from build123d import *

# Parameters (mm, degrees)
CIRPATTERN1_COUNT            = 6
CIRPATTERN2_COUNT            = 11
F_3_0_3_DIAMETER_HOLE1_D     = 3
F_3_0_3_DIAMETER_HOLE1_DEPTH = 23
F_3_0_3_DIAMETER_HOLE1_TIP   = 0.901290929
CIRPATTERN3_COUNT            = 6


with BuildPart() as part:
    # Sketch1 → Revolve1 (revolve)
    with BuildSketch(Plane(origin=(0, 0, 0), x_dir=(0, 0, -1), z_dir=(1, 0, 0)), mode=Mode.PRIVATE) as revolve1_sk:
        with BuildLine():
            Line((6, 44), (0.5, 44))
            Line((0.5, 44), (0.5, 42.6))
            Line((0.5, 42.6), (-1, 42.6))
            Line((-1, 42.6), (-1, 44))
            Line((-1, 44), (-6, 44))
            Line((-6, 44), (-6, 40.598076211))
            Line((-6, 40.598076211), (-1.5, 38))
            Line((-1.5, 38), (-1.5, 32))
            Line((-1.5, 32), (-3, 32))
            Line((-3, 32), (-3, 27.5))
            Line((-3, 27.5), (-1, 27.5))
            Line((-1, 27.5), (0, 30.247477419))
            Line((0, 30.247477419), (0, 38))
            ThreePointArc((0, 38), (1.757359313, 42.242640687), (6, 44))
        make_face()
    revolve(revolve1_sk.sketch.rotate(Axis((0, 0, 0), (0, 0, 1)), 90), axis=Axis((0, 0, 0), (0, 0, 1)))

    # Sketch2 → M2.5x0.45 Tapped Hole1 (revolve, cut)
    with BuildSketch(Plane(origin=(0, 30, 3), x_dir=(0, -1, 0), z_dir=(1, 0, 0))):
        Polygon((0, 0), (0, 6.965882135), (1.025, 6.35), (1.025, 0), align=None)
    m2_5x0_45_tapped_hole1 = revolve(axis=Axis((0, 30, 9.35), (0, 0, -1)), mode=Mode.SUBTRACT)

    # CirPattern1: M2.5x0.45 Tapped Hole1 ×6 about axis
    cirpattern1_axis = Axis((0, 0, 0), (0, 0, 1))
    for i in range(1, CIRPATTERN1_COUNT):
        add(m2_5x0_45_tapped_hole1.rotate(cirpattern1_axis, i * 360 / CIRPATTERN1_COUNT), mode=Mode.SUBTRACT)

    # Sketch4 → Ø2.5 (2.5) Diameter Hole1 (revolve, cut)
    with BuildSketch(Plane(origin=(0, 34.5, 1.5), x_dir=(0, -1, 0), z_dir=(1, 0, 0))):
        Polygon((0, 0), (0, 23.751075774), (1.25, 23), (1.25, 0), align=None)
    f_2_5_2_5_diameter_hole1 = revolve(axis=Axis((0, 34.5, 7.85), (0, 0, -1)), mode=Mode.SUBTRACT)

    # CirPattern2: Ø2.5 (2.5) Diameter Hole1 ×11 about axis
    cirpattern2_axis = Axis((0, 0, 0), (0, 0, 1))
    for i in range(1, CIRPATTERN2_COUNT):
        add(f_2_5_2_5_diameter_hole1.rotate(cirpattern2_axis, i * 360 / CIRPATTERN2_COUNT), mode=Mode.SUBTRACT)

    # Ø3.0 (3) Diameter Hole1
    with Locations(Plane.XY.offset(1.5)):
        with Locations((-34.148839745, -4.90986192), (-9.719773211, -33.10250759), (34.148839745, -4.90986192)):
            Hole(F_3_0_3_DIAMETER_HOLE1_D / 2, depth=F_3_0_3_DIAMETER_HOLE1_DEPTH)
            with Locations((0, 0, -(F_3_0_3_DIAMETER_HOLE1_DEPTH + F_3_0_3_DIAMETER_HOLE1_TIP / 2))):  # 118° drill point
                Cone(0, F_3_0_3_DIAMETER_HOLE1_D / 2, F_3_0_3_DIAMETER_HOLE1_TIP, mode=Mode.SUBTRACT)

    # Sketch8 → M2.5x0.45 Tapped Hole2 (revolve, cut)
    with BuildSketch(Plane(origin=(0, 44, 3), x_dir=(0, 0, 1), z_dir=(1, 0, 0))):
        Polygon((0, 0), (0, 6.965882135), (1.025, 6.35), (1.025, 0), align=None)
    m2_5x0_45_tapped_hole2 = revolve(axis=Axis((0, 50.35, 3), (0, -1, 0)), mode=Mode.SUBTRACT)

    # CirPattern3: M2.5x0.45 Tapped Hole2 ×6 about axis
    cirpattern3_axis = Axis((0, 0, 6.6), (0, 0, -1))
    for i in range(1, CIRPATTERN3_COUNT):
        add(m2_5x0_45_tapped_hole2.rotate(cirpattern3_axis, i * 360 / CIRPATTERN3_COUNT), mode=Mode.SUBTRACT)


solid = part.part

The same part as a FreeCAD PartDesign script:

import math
import FreeCAD as App
import Part
import Sketcher
Q = App.Units.Quantity

doc = App.newDocument("Part")
params = doc.addObject("Spreadsheet::Sheet", "Params")
for row, (alias, value) in enumerate([
    ("sketch1_radius", "6 mm"),
    ("sketch1_width", "6 mm"),
    ("sketch1_height", "5 mm"),
    ("sketch1_height2", "2 mm"),
    ("sketch1_width2", "1.4 mm"),
    ("revolution_angle", "360 deg"),
    ("sketch2_height", "6.35 mm"),
    ("groove_angle", "360 deg"),
    ("sketch3_height", "23 mm"),
    ("sketch3_width", "1.25 mm"),
    ("groove2_angle", "360 deg"),
    ("sketch4_diameter", "3 mm"),
    ("hole_diameter", "3 mm"),
    ("hole_depth", "23 mm"),
    ("sketch5_width", "6.35 mm"),
    ("groove3_angle", "360 deg"),
], start=1):
    params.set(f"A{row}", alias)
    params.set(f"B{row}", "=" + value)
    params.setAlias(f"B{row}", alias)

body = doc.addObject("PartDesign::Body", "Body")

sketch1 = body.newObject("Sketcher::SketchObject", "Sketch")
sketch1.AttachmentSupport = (doc.getObject("YZ_Plane"), [""])
sketch1.MapMode = "FlatFace"
sketch1.addGeometry([
    Part.LineSegment(App.Vector(44, -6, 0), App.Vector(44, -0.5, 0)),
    Part.LineSegment(App.Vector(44, -0.5, 0), App.Vector(42.6, -0.5, 0)),
    Part.LineSegment(App.Vector(42.6, -0.5, 0), App.Vector(42.6, 1, 0)),
    Part.LineSegment(App.Vector(42.6, 1, 0), App.Vector(44, 1, 0)),
    Part.LineSegment(App.Vector(44, 1, 0), App.Vector(44, 6, 0)),
    Part.LineSegment(App.Vector(44, 6, 0), App.Vector(40.6, 6, 0)),
    Part.LineSegment(App.Vector(40.6, 6, 0), App.Vector(38, 1.5, 0)),
    Part.LineSegment(App.Vector(38, 1.5, 0), App.Vector(32, 1.5, 0)),
    Part.LineSegment(App.Vector(32, 1.5, 0), App.Vector(32, 3, 0)),
    Part.LineSegment(App.Vector(32, 3, 0), App.Vector(27.5, 3, 0)),
    Part.LineSegment(App.Vector(27.5, 3, 0), App.Vector(27.5, 1, 0)),
    Part.LineSegment(App.Vector(27.5, 1, 0), App.Vector(30.2, 0, 0)),
    Part.LineSegment(App.Vector(30.2, 0, 0), App.Vector(38, 0, 0)),
    Part.ArcOfCircle(Part.Circle(App.Vector(38, -6, 0), App.Vector(0, 0, 1), 6), math.radians(0), math.radians(90)),
], False)
sketch1.addConstraint([
    Sketcher.Constraint("Coincident", 0, 2, 1, 1),
    Sketcher.Constraint("Coincident", 1, 2, 2, 1),
    Sketcher.Constraint("Coincident", 2, 2, 3, 1),
    Sketcher.Constraint("Coincident", 3, 2, 4, 1),
    Sketcher.Constraint("Coincident", 4, 2, 5, 1),
    Sketcher.Constraint("Coincident", 5, 2, 6, 1),
    Sketcher.Constraint("Coincident", 6, 2, 7, 1),
    Sketcher.Constraint("Coincident", 7, 2, 8, 1),
    Sketcher.Constraint("Coincident", 8, 2, 9, 1),
    Sketcher.Constraint("Coincident", 9, 2, 10, 1),
    Sketcher.Constraint("Coincident", 10, 2, 11, 1),
    Sketcher.Constraint("Coincident", 11, 2, 12, 1),
    Sketcher.Constraint("Tangent", 12, 2, 13, 2),
    Sketcher.Constraint("Tangent", 13, 1, 0, 1),
    Sketcher.Constraint("Vertical", 0),
    Sketcher.Constraint("Horizontal", 1),
    Sketcher.Constraint("Vertical", 2),
    Sketcher.Constraint("Horizontal", 3),
    Sketcher.Constraint("Vertical", 4),
    Sketcher.Constraint("Horizontal", 5),
    Sketcher.Constraint("Horizontal", 7),
    Sketcher.Constraint("Vertical", 8),
    Sketcher.Constraint("Horizontal", 9),
    Sketcher.Constraint("Vertical", 10),
    Sketcher.Constraint("Horizontal", 12),
    Sketcher.Constraint("Symmetric", 4, 2, 13, 1, -1),
    Sketcher.Constraint("PointOnObject", 11, 2, -1),
    Sketcher.Constraint("Horizontal", 3, 2, 10, 2),
    Sketcher.Constraint("Vertical", 13, 3, 6, 2),
    Sketcher.Constraint("Equal", 2, 8),
    Sketcher.Constraint("Radius", 13, Q("6 mm")),
    Sketcher.Constraint("DistanceX", 7, 2, 7, 1, Q("6 mm")),
    Sketcher.Constraint("DistanceY", 4, 1, 4, 2, Q("5 mm")),
    Sketcher.Constraint("DistanceY", 10, 2, 10, 1, Q("2 mm")),
    Sketcher.Constraint("Angle", 6, Q("-120 deg")),
    Sketcher.Constraint("Angle", 11, Q("-20 deg")),
    Sketcher.Constraint("DistanceX", 1, 2, 1, 1, Q("1.4 mm")),
    Sketcher.Constraint("DistanceX", 9, 2, 9, 1, Q("4.5 mm")),
    Sketcher.Constraint("DistanceY", 0, 1, 0, 2, Q("5.5 mm")),
    Sketcher.Constraint("DistanceX", -1, 1, 13, 3, Q("38 mm")),
])
sketch1.setExpression("Constraints[30]", "Params.sketch1_radius")
sketch1.setExpression("Constraints[31]", "Params.sketch1_width")
sketch1.setExpression("Constraints[32]", "Params.sketch1_height")
sketch1.setExpression("Constraints[33]", "Params.sketch1_height2")
sketch1.setExpression("Constraints[36]", "Params.sketch1_width2")
revolution = body.newObject("PartDesign::Revolution", "Revolution")
revolution.Profile = sketch1
revolution.ReferenceAxis = (sketch1, ["V_Axis"])
revolution.setExpression("Angle", "Params.revolution_angle")

sketch2 = body.newObject("Sketcher::SketchObject", "Sketch001")
sketch2.AttachmentSupport = (doc.getObject("YZ_Plane"), [""])
sketch2.MapMode = "FlatFace"
sketch2.addGeometry([
    Part.LineSegment(App.Vector(30, -4, 0), App.Vector(30, 3, 0)),
    Part.LineSegment(App.Vector(30, 3, 0), App.Vector(29, 3, 0)),
    Part.LineSegment(App.Vector(29, 3, 0), App.Vector(29, -3.4, 0)),
    Part.LineSegment(App.Vector(29, -3.4, 0), App.Vector(30, -4, 0)),
], False)
sketch2.addGeometry(Part.LineSegment(App.Vector(30, 3, 0), App.Vector(30, -4, 0)), True)
sketch2.addConstraint([
    Sketcher.Constraint("Coincident", 0, 2, 1, 1),
    Sketcher.Constraint("Coincident", 1, 2, 2, 1),
    Sketcher.Constraint("Coincident", 2, 2, 3, 1),
    Sketcher.Constraint("Coincident", 3, 2, 0, 1),
    Sketcher.Constraint("Vertical", 0),
    Sketcher.Constraint("Horizontal", 1),
    Sketcher.Constraint("Vertical", 2),
    Sketcher.Constraint("Vertical", 4),
    Sketcher.Constraint("Coincident", 4, 1, 0, 2),
    Sketcher.Constraint("Equal", 0, 4),
    Sketcher.Constraint("Angle", 3, Q("-31 deg")),
    Sketcher.Constraint("DistanceX", -1, 1, 0, 2, Q("30 mm")),
    Sketcher.Constraint("DistanceY", -1, 1, 0, 2, Q("3 mm")),
    Sketcher.Constraint("DistanceY", 2, 2, 2, 1, Q("6.35 mm")),
    Sketcher.Constraint("DistanceX", 1, 2, 1, 1, Q("1.025 mm")),
])
sketch2.setExpression("Constraints[13]", "Params.sketch2_height")
groove = body.newObject("PartDesign::Groove", "Groove")
groove.Profile = sketch2
groove.ReferenceAxis = (sketch2, ["Axis0"])
groove.setExpression("Angle", "Params.groove_angle")
doc.recompute()

polarpattern = body.newObject("PartDesign::PolarPattern", "PolarPattern")
polarpattern.Originals = [groove]
polarpattern.Axis = (doc.getObject("Z_Axis"), [""])
polarpattern.Angle = 360
polarpattern.Occurrences = 6
body.Tip = polarpattern

sketch3 = body.newObject("Sketcher::SketchObject", "Sketch002")
sketch3.AttachmentSupport = (doc.getObject("YZ_Plane"), [""])
sketch3.MapMode = "FlatFace"
sketch3.addGeometry([
    Part.LineSegment(App.Vector(34.5, -22.3, 0), App.Vector(34.5, 1.5, 0)),
    Part.LineSegment(App.Vector(34.5, 1.5, 0), App.Vector(33.2, 1.5, 0)),
    Part.LineSegment(App.Vector(33.2, 1.5, 0), App.Vector(33.2, -21.5, 0)),
    Part.LineSegment(App.Vector(33.2, -21.5, 0), App.Vector(34.5, -22.3, 0)),
], False)
sketch3.addGeometry(Part.LineSegment(App.Vector(34.5, 1.5, 0), App.Vector(34.5, -22.3, 0)), True)
sketch3.addConstraint([
    Sketcher.Constraint("Coincident", 0, 2, 1, 1),
    Sketcher.Constraint("Coincident", 1, 2, 2, 1),
    Sketcher.Constraint("Coincident", 2, 2, 3, 1),
    Sketcher.Constraint("Coincident", 3, 2, 0, 1),
    Sketcher.Constraint("Vertical", 0),
    Sketcher.Constraint("Horizontal", 1),
    Sketcher.Constraint("Vertical", 2),
    Sketcher.Constraint("Vertical", 4),
    Sketcher.Constraint("Coincident", 4, 1, 0, 2),
    Sketcher.Constraint("Equal", 0, 4),
    Sketcher.Constraint("DistanceY", 2, 2, 2, 1, Q("23 mm")),
    Sketcher.Constraint("Angle", 3, Q("-31 deg")),
    Sketcher.Constraint("DistanceX", 1, 2, 1, 1, Q("1.25 mm")),
    Sketcher.Constraint("DistanceX", -1, 1, 0, 2, Q("34.5 mm")),
    Sketcher.Constraint("DistanceY", -1, 1, 0, 2, Q("1.5 mm")),
])
sketch3.setExpression("Constraints[10]", "Params.sketch3_height")
sketch3.setExpression("Constraints[12]", "Params.sketch3_width")
groove2 = body.newObject("PartDesign::Groove", "Groove001")
groove2.Profile = sketch3
groove2.ReferenceAxis = (sketch3, ["Axis0"])
groove2.setExpression("Angle", "Params.groove2_angle")
doc.recompute()

polarpattern2 = body.newObject("PartDesign::PolarPattern", "PolarPattern001")
polarpattern2.Originals = [groove2]
polarpattern2.Axis = (doc.getObject("Z_Axis"), [""])
polarpattern2.Angle = 360
polarpattern2.Occurrences = 11
body.Tip = polarpattern2

sketch4 = body.newObject("Sketcher::SketchObject", "Sketch003")
sketch4.AttachmentSupport = (doc.getObject("XY_Plane"), [""])
sketch4.MapMode = "FlatFace"
sketch4.AttachmentOffset = App.Placement(App.Vector(0, 0, 1.5), App.Rotation())
sketch4.addGeometry([
    Part.Circle(App.Vector(-34.1, -4.9, 0), App.Vector(0, 0, 1), 1.5),
    Part.Circle(App.Vector(-9.7, -33.1, 0), App.Vector(0, 0, 1), 1.5),
    Part.Circle(App.Vector(34.1, -4.9, 0), App.Vector(0, 0, 1), 1.5),
], False)
sketch4.addConstraint([
    Sketcher.Constraint("Equal", 0, 1),
    Sketcher.Constraint("Equal", 1, 2),
    Sketcher.Constraint("Symmetric", 0, 3, 2, 3, -2),
    Sketcher.Constraint("Diameter", 0, Q("3 mm")),
    Sketcher.Constraint("DistanceX", 0, 3, -1, 1, Q("34.14884 mm")),
    Sketcher.Constraint("DistanceY", 0, 3, -1, 1, Q("4.909862 mm")),
    Sketcher.Constraint("DistanceX", 1, 3, -1, 1, Q("9.719773 mm")),
    Sketcher.Constraint("DistanceY", 1, 3, -1, 1, Q("33.102508 mm")),
])
sketch4.setExpression("Constraints[3]", "Params.sketch4_diameter")
doc.recompute()
hole = body.newObject("PartDesign::Hole", "Hole")
hole.Profile = sketch4
hole.ThreadType = "None"
hole.setExpression("Diameter", "Params.hole_diameter")
hole.DepthType = "Dimension"
hole.setExpression("Depth", "Params.hole_depth")
hole.DrillPoint = "Angled"
hole.DrillPointAngle = 118

sketch5 = body.newObject("Sketcher::SketchObject", "Sketch004")
sketch5.AttachmentSupport = (doc.getObject("YZ_Plane"), [""])
sketch5.MapMode = "FlatFace"
sketch5.addGeometry([
    Part.LineSegment(App.Vector(37, 3, 0), App.Vector(44, 3, 0)),
    Part.LineSegment(App.Vector(44, 3, 0), App.Vector(44, 4, 0)),
    Part.LineSegment(App.Vector(44, 4, 0), App.Vector(37.6, 4, 0)),
    Part.LineSegment(App.Vector(37.6, 4, 0), App.Vector(37, 3, 0)),
], False)
sketch5.addGeometry(Part.LineSegment(App.Vector(44, 3, 0), App.Vector(37, 3, 0)), True)
sketch5.addConstraint([
    Sketcher.Constraint("Coincident", 0, 2, 1, 1),
    Sketcher.Constraint("Coincident", 1, 2, 2, 1),
    Sketcher.Constraint("Coincident", 2, 2, 3, 1),
    Sketcher.Constraint("Coincident", 3, 2, 0, 1),
    Sketcher.Constraint("Horizontal", 0),
    Sketcher.Constraint("Vertical", 1),
    Sketcher.Constraint("Horizontal", 2),
    Sketcher.Constraint("Horizontal", 4),
    Sketcher.Constraint("Coincident", 4, 1, 0, 2),
    Sketcher.Constraint("Equal", 0, 4),
    Sketcher.Constraint("Angle", 3, Q("-121 deg")),
    Sketcher.Constraint("DistanceX", -1, 1, 0, 2, Q("44 mm")),
    Sketcher.Constraint("DistanceY", -1, 1, 0, 2, Q("3 mm")),
    Sketcher.Constraint("DistanceX", 2, 2, 2, 1, Q("6.35 mm")),
    Sketcher.Constraint("DistanceY", 1, 1, 1, 2, Q("1.025 mm")),
])
sketch5.setExpression("Constraints[13]", "Params.sketch5_width")
groove3 = body.newObject("PartDesign::Groove", "Groove002")
groove3.Profile = sketch5
groove3.ReferenceAxis = (sketch5, ["Axis0"])
groove3.setExpression("Angle", "Params.groove3_angle")
doc.recompute()

polarpattern3 = body.newObject("PartDesign::PolarPattern", "PolarPattern002")
polarpattern3.Originals = [groove3]
polarpattern3.Axis = (doc.getObject("Z_Axis"), [""])
polarpattern3.Angle = 360
polarpattern3.Occurrences = 6
body.Tip = polarpattern3

doc.recompute()
